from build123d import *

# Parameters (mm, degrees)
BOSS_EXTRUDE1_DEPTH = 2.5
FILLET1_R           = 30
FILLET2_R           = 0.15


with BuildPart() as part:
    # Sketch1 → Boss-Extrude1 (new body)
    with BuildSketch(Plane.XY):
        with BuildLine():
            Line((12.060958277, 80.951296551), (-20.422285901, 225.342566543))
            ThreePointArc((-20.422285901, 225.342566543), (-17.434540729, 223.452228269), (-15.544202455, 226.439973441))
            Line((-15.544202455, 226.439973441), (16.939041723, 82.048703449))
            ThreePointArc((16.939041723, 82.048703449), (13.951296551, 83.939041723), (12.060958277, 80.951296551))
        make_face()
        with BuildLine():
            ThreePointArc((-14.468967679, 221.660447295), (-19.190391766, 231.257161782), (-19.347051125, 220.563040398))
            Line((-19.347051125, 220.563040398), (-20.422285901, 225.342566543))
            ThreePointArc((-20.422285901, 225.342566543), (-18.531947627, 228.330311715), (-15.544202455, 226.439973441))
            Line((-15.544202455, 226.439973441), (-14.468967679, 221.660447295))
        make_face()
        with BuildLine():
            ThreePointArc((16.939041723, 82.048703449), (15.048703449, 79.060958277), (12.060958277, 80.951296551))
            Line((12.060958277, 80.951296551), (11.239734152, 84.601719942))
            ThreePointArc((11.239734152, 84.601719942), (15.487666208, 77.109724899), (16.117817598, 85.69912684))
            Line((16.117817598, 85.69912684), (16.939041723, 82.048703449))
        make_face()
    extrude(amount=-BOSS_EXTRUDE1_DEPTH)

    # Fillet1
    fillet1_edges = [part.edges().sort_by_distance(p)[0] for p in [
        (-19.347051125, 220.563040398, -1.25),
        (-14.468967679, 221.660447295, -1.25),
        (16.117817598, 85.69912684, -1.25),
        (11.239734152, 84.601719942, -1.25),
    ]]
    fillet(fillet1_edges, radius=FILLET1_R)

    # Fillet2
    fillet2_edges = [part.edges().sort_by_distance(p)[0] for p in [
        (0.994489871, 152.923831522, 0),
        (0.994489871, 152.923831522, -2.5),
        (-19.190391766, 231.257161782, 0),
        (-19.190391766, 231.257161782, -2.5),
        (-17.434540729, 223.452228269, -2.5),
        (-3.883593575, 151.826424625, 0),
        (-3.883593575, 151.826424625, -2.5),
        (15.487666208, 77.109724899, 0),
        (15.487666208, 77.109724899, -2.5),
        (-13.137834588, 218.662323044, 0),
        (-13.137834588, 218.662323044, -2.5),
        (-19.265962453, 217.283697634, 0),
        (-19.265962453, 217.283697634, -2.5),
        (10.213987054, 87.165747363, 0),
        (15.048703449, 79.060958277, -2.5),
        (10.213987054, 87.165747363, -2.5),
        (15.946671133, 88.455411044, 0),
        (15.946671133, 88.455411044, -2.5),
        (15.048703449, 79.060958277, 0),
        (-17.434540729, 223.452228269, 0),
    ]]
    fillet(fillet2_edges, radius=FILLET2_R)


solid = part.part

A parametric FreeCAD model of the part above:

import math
import FreeCAD as App
import Part
import Sketcher
from FreeCAD import Vector


def edges_at(feature, points):
    """Names of the edges that pass closest to the given points."""
    edges = feature.Shape.Edges
    near = lambda p: min(range(len(edges)), key=lambda i: edges[i].distToShape(Part.Vertex(*p))[0])
    return sorted({f"Edge{near(p) + 1}" for p in points})

doc = App.newDocument("Part")
body = doc.addObject("PartDesign::Body", "Body")

# Sketch on XY plane
sketch1 = body.newObject("Sketcher::SketchObject", "Sketch")
sketch1.AttachmentSupport = (doc.getObject("XY_Plane"), [""])
sketch1.MapMode = "FlatFace"
sketch1.addGeometry([
    Part.LineSegment(Vector(-19.347051, 220.56304, 0), Vector(11.239734, 84.60172, 0)),  # 0
    Part.ArcOfCircle(Part.Circle(Vector(14.5, 81.5, 0), Vector(0, 0, 1), 4.5), math.radians(136.427562), math.radians(428.929585)),  # 1
    Part.LineSegment(Vector(16.117818, 85.699127, 0), Vector(-14.468968, 221.660447, 0)),  # 2
    Part.ArcOfCircle(Part.Circle(Vector(-17.983244, 225.89127, 0), Vector(0, 0, 1), 5.5), math.radians(-50.285734), math.radians(255.642882)),  # 3
    Part.Circle(Vector(14.5, 81.5, 0), Vector(0, 0, 1), 2.5),  # 4
    Part.Circle(Vector(-17.983244, 225.89127, 0), Vector(0, 0, 1), 2.5),  # 5
], False)
sketch1.addConstraint([
    Sketcher.Constraint("Coincident", 0, 2, 1, 1),
    Sketcher.Constraint("Coincident", 1, 2, 2, 1),
    Sketcher.Constraint("Coincident", 2, 2, 3, 1),
    Sketcher.Constraint("Coincident", 3, 2, 0, 1),
    Sketcher.Constraint("Coincident", 4, 3, 1, 3),
    Sketcher.Constraint("Coincident", 5, 3, 3, 3),
    Sketcher.Constraint("Equal", 4, 5),
    Sketcher.Constraint("Parallel", 0, 2),
    Sketcher.Constraint("Equal", 0, 2),
    Sketcher.Constraint("Diameter", 4, 5.0),
    Sketcher.Constraint("Radius", 1, 4.5),
    Sketcher.Constraint("Radius", 3, 5.5),
    Sketcher.Constraint("DistanceX", -1, 1, 1, 3, 14.5),
    Sketcher.Constraint("DistanceY", -1, 1, 1, 3, 81.5),
    Sketcher.Constraint("DistanceX", 2, 2, 0, 2, 25.708702),
    Sketcher.Constraint("DistanceY", -1, 1, 3, 3, 225.89127),
    Sketcher.Constraint("DistanceY", -1, 1, 0, 2, 84.60172),
    Sketcher.Constraint("DistanceX", 3, 2, -1, 1, 19.347051),
])
pad1 = body.newObject("PartDesign::Pad", "Pad")
pad1.Profile = sketch1
pad1.Length = 2.5
pad1.Reversed = True
doc.recompute()

fillet = body.newObject("PartDesign::Fillet", "Fillet")
fillet.Base = (pad1, edges_at(pad1, [
    (-19.347, 220.563, -1.25),
    (-14.469, 221.66, -1.25),
    (16.118, 85.699, -1.25),
    (11.24, 84.602, -1.25),
]))
fillet.Radius = 30
doc.recompute()

fillet2 = body.newObject("PartDesign::Fillet", "Fillet001")
fillet2.Base = (fillet, edges_at(fillet, [
    (0.994, 152.924, 0),
    (0.994, 152.924, -2.5),
    (-19.19, 231.257, 0),
    (-19.19, 231.257, -2.5),
    (-15.544, 226.44, -2.5),
    (-3.884, 151.826, 0),
    (-3.884, 151.826, -2.5),
    (15.488, 77.11, 0),
    (15.488, 77.11, -2.5),
    (-13.138, 218.662, 0),
    (-13.138, 218.662, -2.5),
    (-19.266, 217.284, 0),
    (-19.266, 217.284, -2.5),
    (10.214, 87.166, 0),
    (12.061, 80.951, -2.5),
    (10.214, 87.166, -2.5),
    (15.947, 88.455, 0),
    (15.947, 88.455, -2.5),
    (12.061, 80.951, 0),
    (-15.544, 226.44, 0),
]))
fillet2.Radius = 0.15

doc.recompute()
